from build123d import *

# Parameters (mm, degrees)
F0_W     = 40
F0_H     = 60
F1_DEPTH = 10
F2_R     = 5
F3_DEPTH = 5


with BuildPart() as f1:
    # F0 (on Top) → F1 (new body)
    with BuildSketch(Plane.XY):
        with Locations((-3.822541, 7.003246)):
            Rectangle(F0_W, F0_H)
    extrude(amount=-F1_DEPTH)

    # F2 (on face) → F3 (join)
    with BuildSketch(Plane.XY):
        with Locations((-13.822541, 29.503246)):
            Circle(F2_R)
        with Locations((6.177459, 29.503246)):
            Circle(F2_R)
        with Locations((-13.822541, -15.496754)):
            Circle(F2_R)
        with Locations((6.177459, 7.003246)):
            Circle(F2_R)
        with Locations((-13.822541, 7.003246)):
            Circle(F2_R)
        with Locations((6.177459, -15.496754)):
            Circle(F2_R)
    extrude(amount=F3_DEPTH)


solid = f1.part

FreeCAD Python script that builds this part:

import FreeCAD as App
import Part
import Sketcher
from FreeCAD import Vector


def add_polygon(sketch, points):
    """Adds a closed chain of lines whose ends are joined by coincident constraints."""
    first, n = sketch.GeometryCount, len(points)
    for a, b in zip(points, points[1:] + points[:1]):
        sketch.addGeometry(Part.LineSegment(App.Vector(*a, 0), App.Vector(*b, 0)), False)
    for i in range(n):
        sketch.addConstraint(Sketcher.Constraint("Coincident", first + i, 2, first + (i + 1) % n, 1))

doc = App.newDocument("Part")
body = doc.addObject("PartDesign::Body", "Body")

# Sketch on XY plane
sketch1 = body.newObject("Sketcher::SketchObject", "Sketch")
sketch1.AttachmentSupport = (doc.getObject("XY_Plane"), [""])
sketch1.MapMode = "FlatFace"
add_polygon(sketch1, [(-24, 37), (-24, -23), (16, -23), (16, 37)])  # lines 0-3
sketch1.addConstraint([
    Sketcher.Constraint("Vertical", 0),
    Sketcher.Constraint("Horizontal", 1),
    Sketcher.Constraint("Vertical", 2),
    Sketcher.Constraint("Horizontal", 3),
    Sketcher.Constraint("DistanceX", 1, 1, 1, 2, 40.0),
    Sketcher.Constraint("DistanceY", 0, 2, 0, 1, 60.0),
    Sketcher.Constraint("DistanceX", 0, 2, -1, 1, 23.822541),
    Sketcher.Constraint("DistanceY", 0, 2, -1, 1, 22.996754),
])
pad1 = body.newObject("PartDesign::Pad", "Pad")
pad1.Profile = sketch1
pad1.Length = 10
pad1.Reversed = True

# Sketch on XY plane
sketch2 = body.newObject("Sketcher::SketchObject", "Sketch001")
sketch2.AttachmentSupport = (doc.getObject("XY_Plane"), [""])
sketch2.MapMode = "FlatFace"
sketch2.addGeometry([
    Part.Circle(Vector(-14, 30, 0), Vector(0, 0, 1), 5),  # 0
    Part.Circle(Vector(6, 30, 0), Vector(0, 0, 1), 5),  # 1
    Part.Circle(Vector(-14, -15, 0), Vector(0, 0, 1), 5),  # 2
    Part.Circle(Vector(6, 7, 0), Vector(0, 0, 1), 5),  # 3
    Part.Circle(Vector(-14, 7, 0), Vector(0, 0, 1), 5),  # 4
    Part.Circle(Vector(6, -15, 0), Vector(0, 0, 1), 5),  # 5
], False)
sketch2.addConstraint([
    Sketcher.Constraint("Equal", 0, 1),
    Sketcher.Constraint("Equal", 1, 2),
    Sketcher.Constraint("Equal", 2, 3),
    Sketcher.Constraint("Equal", 3, 4),
    Sketcher.Constraint("Equal", 4, 5),
    Sketcher.Constraint("Horizontal", 0, 3, 1, 3),
    Sketcher.Constraint("Horizontal", 3, 3, 4, 3),
    Sketcher.Constraint("Horizontal", 2, 3, 5, 3),
    Sketcher.Constraint("Vertical", 0, 3, 2, 3),
    Sketcher.Constraint("Vertical", 1, 3, 3, 3),
    Sketcher.Constraint("Vertical", 2, 3, 4, 3),
    Sketcher.Constraint("Vertical", 3, 3, 5, 3),
    Sketcher.Constraint("Diameter", 0, 10.0),
    Sketcher.Constraint("DistanceX", 0, 3, 1, 3, 20.0),
    Sketcher.Constraint("DistanceY", 2, 3, 0, 3, 45.0),
    Sketcher.Constraint("DistanceY", 3, 3, 1, 3, 22.5),
    Sketcher.Constraint("DistanceX", 0, 3, -1, 1, 13.822541),
    Sketcher.Constraint("DistanceY", -1, 1, 0, 3, 29.503246),
])
pad2 = body.newObject("PartDesign::Pad", "Pad001")
pad2.Profile = sketch2
pad2.Length = 5

doc.recompute()
